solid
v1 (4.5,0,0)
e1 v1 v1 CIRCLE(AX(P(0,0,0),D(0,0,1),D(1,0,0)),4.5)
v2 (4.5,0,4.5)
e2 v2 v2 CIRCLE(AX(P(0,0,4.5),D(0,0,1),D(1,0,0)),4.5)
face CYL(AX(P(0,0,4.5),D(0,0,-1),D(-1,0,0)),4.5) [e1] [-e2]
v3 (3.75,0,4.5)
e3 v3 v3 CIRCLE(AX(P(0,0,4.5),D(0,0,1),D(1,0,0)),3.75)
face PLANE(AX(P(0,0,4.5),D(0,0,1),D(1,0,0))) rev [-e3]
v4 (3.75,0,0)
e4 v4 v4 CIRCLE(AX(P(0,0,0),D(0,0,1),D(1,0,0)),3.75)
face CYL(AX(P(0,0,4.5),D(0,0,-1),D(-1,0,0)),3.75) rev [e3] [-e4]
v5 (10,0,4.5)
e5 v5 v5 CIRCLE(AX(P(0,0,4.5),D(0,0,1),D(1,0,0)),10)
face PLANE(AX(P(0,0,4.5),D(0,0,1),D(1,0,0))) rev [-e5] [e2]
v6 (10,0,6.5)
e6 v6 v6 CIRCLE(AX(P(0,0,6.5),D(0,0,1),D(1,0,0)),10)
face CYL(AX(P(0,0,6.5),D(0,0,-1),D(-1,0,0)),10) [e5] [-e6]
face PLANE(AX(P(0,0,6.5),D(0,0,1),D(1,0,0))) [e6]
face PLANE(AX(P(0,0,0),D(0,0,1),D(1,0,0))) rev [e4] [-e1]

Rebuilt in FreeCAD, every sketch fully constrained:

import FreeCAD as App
import Part
import Sketcher
from FreeCAD import Vector
Q = App.Units.Quantity

doc = App.newDocument("Part")
params = doc.addObject("Spreadsheet::Sheet", "Params")
for row, (alias, value) in enumerate([
    ("sketch1_diameter", "9 mm"),
    ("sketch1_diameter2", "7.5 mm"),
    ("pad1_length", "4.5 mm"),
    ("sketch2_diameter", "20 mm"),
    ("pad2_length", "2 mm"),
], start=1):
    params.set(f"A{row}", alias)
    params.set(f"B{row}", "=" + value)
    params.setAlias(f"B{row}", alias)

body = doc.addObject("PartDesign::Body", "Body")

sketch1 = body.newObject("Sketcher::SketchObject", "Sketch")
sketch1.AttachmentSupport = (doc.getObject("XY_Plane"), [""])
sketch1.MapMode = "FlatFace"
sketch1.addGeometry([
    Part.Circle(Vector(0, 0, 0), Vector(0, 0, 1), 4.5),
    Part.Circle(Vector(0, 0, 0), Vector(0, 0, 1), 3.75),
], False)
sketch1.addConstraint([
    Sketcher.Constraint("Coincident", 0, 3, -1, 1),
    Sketcher.Constraint("Coincident", 1, 3, -1, 1),
    Sketcher.Constraint("Diameter", 0, Q("9 mm")),
    Sketcher.Constraint("Diameter", 1, Q("7.5 mm")),
])
sketch1.setExpression("Constraints[2]", "Params.sketch1_diameter")
sketch1.setExpression("Constraints[3]", "Params.sketch1_diameter2")
pad1 = body.newObject("PartDesign::Pad", "Pad")
pad1.Profile = sketch1
pad1.setExpression("Length", "Params.pad1_length")

sketch2 = body.newObject("Sketcher::SketchObject", "Sketch001")
sketch2.AttachmentSupport = (doc.getObject("XY_Plane"), [""])
sketch2.MapMode = "FlatFace"
sketch2.AttachmentOffset = App.Placement(Vector(0, 0, 4.5), App.Rotation())
sketch2.addGeometry(Part.Circle(Vector(0, 0, 0), Vector(0, 0, 1), 10), False)
sketch2.addConstraint([
    Sketcher.Constraint("Coincident", 0, 3, -1, 1),
    Sketcher.Constraint("Diameter", 0, Q("20 mm")),
])
sketch2.setExpression("Constraints[1]", "Params.sketch2_diameter")
pad2 = body.newObject("PartDesign::Pad", "Pad001")
pad2.Profile = sketch2
pad2.setExpression("Length", "Params.pad2_length")

doc.recompute()
